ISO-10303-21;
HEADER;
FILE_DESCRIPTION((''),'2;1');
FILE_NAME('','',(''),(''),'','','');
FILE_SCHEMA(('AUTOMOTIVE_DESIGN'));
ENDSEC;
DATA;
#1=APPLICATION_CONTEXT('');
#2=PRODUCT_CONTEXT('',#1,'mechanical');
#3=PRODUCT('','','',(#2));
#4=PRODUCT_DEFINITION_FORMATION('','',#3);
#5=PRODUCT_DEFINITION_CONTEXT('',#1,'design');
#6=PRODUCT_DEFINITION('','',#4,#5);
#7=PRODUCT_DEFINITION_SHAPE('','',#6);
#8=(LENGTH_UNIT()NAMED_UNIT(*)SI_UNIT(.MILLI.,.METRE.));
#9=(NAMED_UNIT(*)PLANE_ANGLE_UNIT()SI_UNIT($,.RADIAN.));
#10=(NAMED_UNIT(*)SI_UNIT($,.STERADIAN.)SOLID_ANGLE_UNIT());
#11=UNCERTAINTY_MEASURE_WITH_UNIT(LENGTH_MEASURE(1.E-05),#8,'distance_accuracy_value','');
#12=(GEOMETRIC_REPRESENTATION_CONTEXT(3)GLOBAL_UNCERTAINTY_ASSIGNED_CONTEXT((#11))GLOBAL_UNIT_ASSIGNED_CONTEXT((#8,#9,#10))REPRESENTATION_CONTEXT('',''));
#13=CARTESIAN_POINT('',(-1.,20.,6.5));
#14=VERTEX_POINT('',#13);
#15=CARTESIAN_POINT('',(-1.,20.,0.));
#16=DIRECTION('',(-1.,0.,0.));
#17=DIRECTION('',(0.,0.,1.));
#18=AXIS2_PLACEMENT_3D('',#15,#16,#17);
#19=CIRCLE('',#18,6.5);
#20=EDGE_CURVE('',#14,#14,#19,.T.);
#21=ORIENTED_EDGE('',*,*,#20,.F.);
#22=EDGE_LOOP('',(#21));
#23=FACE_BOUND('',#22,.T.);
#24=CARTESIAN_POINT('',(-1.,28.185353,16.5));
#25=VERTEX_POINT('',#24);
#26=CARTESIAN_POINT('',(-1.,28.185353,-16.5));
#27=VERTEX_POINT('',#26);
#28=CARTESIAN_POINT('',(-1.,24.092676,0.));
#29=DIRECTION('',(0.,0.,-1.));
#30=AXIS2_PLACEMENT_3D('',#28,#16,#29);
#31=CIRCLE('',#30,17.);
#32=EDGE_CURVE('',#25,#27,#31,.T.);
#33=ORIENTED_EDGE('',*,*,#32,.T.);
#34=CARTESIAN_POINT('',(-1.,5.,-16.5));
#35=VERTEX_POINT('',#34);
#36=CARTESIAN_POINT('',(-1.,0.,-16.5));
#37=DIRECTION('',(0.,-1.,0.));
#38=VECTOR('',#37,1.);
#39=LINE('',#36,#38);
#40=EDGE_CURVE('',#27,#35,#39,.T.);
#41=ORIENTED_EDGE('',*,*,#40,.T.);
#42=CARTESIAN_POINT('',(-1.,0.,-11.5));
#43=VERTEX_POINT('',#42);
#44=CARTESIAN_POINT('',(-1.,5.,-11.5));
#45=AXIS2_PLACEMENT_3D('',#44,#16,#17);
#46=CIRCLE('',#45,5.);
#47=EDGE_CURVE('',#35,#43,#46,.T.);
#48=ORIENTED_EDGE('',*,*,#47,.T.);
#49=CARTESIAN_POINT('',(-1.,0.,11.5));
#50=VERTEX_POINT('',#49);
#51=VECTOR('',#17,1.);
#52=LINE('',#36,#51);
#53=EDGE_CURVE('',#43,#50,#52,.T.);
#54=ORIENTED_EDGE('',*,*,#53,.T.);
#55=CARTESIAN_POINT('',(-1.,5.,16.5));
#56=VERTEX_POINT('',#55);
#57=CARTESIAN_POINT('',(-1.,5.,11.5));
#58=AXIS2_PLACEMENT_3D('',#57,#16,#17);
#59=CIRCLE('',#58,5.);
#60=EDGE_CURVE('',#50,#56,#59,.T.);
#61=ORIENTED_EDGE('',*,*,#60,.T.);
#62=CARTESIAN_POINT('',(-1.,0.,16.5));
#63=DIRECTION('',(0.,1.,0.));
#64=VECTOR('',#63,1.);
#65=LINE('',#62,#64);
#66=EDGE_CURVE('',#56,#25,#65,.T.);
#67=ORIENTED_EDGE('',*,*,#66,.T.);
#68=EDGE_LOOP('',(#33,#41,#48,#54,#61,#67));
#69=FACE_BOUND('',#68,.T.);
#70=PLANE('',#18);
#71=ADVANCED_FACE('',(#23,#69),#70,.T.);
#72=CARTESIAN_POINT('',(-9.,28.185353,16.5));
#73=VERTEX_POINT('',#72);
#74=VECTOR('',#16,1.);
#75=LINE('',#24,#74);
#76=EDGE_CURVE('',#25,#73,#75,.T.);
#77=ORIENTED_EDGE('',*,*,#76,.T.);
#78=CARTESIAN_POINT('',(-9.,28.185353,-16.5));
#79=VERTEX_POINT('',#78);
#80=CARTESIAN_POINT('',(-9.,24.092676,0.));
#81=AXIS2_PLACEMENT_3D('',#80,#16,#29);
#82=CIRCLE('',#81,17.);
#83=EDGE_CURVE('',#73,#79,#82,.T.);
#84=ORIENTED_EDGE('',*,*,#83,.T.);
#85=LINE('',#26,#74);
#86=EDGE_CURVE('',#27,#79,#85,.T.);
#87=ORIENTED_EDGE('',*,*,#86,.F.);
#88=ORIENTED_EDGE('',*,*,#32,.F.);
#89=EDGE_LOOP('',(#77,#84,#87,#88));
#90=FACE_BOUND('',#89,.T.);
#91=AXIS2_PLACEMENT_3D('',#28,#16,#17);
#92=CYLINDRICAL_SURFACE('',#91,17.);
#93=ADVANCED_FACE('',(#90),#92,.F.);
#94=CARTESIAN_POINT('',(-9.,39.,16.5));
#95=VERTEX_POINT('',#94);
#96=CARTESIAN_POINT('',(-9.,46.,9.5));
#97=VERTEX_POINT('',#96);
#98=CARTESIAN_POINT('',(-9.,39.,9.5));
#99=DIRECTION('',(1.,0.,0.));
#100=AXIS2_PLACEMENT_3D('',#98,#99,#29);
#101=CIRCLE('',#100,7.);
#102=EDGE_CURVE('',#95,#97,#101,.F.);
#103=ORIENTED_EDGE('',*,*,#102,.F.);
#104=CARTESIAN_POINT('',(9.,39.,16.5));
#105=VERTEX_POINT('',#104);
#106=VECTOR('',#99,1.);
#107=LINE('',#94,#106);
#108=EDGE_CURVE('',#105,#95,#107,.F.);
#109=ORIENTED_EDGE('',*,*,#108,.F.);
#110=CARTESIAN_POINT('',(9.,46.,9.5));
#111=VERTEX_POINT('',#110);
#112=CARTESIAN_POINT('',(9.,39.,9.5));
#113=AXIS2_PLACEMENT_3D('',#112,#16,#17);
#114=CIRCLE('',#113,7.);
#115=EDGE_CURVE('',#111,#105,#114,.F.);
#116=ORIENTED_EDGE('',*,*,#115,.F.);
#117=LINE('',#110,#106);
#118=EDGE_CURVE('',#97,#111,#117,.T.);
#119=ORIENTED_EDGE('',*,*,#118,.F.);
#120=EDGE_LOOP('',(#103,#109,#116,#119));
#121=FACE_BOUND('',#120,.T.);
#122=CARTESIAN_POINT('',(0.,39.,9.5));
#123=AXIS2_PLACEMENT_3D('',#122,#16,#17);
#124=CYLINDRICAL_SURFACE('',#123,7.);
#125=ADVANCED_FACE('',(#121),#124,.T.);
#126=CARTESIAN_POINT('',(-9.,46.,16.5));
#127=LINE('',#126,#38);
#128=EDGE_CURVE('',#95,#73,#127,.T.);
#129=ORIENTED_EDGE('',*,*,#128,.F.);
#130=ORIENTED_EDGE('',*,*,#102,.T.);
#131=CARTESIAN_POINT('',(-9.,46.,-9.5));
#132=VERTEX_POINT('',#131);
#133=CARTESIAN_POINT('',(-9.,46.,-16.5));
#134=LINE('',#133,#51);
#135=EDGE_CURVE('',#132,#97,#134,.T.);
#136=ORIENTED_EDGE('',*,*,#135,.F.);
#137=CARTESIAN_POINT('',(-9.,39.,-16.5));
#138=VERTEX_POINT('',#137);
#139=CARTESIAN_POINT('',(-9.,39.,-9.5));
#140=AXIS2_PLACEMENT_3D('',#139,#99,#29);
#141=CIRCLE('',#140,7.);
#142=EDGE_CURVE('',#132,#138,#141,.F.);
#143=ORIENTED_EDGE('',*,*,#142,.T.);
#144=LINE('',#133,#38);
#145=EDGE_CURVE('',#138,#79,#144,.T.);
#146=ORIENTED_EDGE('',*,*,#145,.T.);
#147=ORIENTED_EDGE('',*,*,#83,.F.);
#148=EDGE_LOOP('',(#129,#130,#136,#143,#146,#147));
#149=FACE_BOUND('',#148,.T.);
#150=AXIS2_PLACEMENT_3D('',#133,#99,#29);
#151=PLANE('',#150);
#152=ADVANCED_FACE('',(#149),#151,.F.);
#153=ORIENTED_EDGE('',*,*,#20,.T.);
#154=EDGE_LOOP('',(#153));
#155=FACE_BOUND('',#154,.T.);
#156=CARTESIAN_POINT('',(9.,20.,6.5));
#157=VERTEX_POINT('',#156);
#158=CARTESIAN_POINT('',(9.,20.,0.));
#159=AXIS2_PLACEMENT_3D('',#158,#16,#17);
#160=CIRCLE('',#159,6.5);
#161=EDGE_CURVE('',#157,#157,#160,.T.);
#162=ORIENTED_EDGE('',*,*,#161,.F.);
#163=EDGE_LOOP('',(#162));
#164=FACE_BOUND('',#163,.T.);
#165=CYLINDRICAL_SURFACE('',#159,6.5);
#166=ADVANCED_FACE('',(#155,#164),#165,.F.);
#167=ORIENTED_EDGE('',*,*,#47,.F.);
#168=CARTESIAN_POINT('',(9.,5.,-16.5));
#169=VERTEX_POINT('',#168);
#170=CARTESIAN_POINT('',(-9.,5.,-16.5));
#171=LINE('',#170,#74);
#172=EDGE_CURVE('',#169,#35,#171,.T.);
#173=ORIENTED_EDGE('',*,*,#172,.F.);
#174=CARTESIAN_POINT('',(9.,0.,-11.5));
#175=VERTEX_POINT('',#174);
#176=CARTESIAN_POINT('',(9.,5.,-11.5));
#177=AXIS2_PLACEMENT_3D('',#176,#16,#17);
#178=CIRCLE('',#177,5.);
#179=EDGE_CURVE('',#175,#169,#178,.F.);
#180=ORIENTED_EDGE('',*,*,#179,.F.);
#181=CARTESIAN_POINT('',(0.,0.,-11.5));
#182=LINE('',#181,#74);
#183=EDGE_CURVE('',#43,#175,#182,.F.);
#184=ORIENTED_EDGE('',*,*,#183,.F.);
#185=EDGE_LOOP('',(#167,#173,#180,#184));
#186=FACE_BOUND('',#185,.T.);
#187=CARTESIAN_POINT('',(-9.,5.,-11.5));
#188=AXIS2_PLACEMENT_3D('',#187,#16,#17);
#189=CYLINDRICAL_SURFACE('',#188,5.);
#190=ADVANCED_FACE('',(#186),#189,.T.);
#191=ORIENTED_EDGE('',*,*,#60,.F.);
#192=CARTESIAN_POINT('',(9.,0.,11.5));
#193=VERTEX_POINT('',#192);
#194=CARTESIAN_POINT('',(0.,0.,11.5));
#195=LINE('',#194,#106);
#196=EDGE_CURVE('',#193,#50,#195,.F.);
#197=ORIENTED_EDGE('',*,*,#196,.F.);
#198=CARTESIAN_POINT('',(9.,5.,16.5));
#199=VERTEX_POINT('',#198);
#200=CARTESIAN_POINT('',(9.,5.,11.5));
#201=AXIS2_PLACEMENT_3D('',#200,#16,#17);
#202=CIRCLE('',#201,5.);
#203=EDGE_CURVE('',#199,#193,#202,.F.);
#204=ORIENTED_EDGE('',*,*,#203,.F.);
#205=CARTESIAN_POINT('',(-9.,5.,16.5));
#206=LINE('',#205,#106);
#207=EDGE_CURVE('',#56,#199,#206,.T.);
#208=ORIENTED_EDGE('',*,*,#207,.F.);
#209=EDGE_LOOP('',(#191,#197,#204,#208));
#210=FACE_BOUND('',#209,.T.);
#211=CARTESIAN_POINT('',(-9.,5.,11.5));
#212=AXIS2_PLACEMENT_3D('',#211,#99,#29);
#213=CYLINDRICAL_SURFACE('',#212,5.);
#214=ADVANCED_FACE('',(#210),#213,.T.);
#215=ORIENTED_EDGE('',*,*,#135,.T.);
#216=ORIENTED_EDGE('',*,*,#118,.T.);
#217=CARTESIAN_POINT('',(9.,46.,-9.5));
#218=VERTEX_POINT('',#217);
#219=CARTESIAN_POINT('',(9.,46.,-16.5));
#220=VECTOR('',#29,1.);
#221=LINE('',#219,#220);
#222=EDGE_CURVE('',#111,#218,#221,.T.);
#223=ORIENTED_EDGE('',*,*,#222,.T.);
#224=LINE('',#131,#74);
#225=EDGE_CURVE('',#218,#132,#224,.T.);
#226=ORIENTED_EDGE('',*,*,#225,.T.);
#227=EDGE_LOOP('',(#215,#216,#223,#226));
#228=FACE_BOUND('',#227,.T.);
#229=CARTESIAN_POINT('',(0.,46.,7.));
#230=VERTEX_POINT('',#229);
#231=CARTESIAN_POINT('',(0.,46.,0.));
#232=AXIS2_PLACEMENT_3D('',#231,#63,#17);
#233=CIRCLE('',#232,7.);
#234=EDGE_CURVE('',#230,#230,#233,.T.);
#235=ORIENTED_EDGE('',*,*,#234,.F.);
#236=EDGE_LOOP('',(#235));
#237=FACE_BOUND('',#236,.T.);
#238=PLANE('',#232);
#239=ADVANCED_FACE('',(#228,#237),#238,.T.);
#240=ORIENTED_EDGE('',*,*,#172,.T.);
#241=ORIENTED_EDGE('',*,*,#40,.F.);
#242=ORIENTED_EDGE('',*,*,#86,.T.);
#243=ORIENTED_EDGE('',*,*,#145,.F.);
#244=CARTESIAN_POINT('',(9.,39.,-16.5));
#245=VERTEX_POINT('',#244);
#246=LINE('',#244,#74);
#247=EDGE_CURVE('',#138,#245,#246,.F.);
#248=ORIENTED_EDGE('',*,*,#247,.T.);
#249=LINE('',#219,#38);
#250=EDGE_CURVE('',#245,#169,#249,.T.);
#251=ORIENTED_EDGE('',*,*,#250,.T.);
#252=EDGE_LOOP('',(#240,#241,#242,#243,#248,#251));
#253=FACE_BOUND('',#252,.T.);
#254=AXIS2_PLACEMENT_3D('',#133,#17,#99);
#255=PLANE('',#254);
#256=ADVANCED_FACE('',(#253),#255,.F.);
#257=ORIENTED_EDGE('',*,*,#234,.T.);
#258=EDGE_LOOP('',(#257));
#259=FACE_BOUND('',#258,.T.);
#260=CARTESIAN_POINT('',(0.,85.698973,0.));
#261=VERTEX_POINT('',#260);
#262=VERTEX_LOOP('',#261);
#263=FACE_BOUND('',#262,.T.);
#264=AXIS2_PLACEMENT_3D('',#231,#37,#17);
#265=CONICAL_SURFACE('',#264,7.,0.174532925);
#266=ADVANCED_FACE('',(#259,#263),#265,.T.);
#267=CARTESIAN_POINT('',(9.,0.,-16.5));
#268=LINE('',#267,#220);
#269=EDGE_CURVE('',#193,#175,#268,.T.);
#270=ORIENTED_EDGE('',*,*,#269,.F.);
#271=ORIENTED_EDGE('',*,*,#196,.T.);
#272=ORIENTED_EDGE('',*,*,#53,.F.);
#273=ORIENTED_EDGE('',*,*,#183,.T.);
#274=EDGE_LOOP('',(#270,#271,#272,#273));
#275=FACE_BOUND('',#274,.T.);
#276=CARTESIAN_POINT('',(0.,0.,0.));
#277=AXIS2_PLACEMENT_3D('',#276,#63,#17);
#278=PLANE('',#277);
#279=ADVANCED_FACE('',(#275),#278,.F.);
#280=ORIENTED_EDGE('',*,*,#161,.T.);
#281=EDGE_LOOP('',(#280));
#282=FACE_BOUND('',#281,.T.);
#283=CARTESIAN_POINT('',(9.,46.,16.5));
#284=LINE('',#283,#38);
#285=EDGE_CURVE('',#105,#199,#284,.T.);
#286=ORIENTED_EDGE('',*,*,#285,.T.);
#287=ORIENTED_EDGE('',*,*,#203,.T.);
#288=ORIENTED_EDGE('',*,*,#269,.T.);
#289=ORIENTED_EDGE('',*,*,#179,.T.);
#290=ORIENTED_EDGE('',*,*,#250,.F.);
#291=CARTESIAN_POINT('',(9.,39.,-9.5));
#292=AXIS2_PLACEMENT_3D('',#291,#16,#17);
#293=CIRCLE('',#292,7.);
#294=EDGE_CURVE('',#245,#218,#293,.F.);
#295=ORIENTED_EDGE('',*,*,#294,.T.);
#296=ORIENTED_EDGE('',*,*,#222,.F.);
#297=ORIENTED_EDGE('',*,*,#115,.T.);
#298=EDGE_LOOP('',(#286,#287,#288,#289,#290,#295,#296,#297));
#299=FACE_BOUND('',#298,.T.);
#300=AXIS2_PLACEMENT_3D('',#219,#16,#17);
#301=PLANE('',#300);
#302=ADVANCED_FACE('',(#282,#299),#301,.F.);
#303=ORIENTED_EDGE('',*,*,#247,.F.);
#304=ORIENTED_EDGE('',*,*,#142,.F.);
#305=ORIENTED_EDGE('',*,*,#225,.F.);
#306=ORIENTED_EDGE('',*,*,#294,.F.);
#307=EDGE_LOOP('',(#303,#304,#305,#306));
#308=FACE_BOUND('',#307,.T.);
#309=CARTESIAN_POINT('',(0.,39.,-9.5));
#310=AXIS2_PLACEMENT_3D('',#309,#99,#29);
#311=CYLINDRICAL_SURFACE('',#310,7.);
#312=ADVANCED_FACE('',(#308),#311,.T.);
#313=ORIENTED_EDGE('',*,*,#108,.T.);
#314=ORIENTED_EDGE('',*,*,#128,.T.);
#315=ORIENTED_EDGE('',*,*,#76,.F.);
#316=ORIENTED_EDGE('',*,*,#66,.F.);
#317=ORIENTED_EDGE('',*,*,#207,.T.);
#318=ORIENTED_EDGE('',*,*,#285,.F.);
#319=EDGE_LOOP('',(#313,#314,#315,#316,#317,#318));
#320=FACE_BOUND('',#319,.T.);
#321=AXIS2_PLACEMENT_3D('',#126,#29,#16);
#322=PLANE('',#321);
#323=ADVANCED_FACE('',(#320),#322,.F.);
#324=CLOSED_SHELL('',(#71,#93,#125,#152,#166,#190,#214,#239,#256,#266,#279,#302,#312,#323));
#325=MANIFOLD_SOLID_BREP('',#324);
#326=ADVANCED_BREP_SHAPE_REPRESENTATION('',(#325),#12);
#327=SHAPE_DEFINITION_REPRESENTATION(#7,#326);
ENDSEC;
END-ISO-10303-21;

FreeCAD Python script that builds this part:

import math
import FreeCAD as App
import Part
import Sketcher
from FreeCAD import Vector
Q = App.Units.Quantity


def edges_at(feature, points):
    """Names of the edges that pass closest to the given points."""
    edges = feature.Shape.Edges
    near = lambda p: min(range(len(edges)), key=lambda i: edges[i].distToShape(Part.Vertex(*p))[0])
    return sorted({f"Edge{near(p) + 1}" for p in points})


def add_polygon(sketch, points):
    """Adds a closed chain of lines whose ends are joined by coincident constraints."""
    first, n = sketch.GeometryCount, len(points)
    for a, b in zip(points, points[1:] + points[:1]):
        sketch.addGeometry(Part.LineSegment(App.Vector(*a, 0), App.Vector(*b, 0)), False)
    for i in range(n):
        sketch.addConstraint(Sketcher.Constraint("Coincident", first + i, 2, first + (i + 1) % n, 1))

doc = App.newDocument("Part")
body = doc.addObject("PartDesign::Body", "Body")

sketch1 = body.newObject("Sketcher::SketchObject", "Sketch")
sketch1.AttachmentSupport = (doc.getObject("XZ_Plane"), [""])
sketch1.MapMode = "FlatFace"
add_polygon(sketch1, [(-9, -16.5), (-9, 16.5), (9, 16.5), (9, -16.5)])
sketch1.addConstraint([
    Sketcher.Constraint("Vertical", 0),
    Sketcher.Constraint("Horizontal", 1),
    Sketcher.Constraint("Vertical", 2),
    Sketcher.Constraint("Horizontal", 3),
    Sketcher.Constraint("Symmetric", 0, 2, 2, 2, -1, 1),
    Sketcher.Constraint("DistanceX", 1, 1, 1, 2, Q("18 mm")),
    Sketcher.Constraint("DistanceY", 0, 1, 0, 2, Q("33 mm")),
])
pad1 = body.newObject("PartDesign::Pad", "Pad")
pad1.Profile = sketch1
pad1.Length = 46
pad1.Reversed = True

sketch2 = body.newObject("Sketcher::SketchObject", "Sketch001")
sketch2.AttachmentSupport = (doc.getObject("YZ_Plane"), [""])
sketch2.MapMode = "FlatFace"
add_polygon(sketch2, [(46, 0), (46, -7), (85.698973, 0)])
sketch2.addConstraint([
    Sketcher.Constraint("Vertical", 0),
    Sketcher.Constraint("Horizontal", 2),
    Sketcher.Constraint("PointOnObject", 1, 2, -1),
    Sketcher.Constraint("DistanceY", 0, 2, 0, 1, Q("7 mm")),
    Sketcher.Constraint("Angle", 1, Q("10 deg")),
    Sketcher.Constraint("DistanceX", -1, 1, 0, 2, Q("46 mm")),
])
revolution = body.newObject("PartDesign::Revolution", "Revolution")
revolution.Profile = sketch2
revolution.ReferenceAxis = (sketch2, ["H_Axis"])
revolution.Angle = 360

sketch3 = body.newObject("Sketcher::SketchObject", "Sketch002")
sketch3.AttachmentSupport = (doc.getObject("YZ_Plane"), [""])
sketch3.MapMode = "FlatFace"
sketch3.AttachmentOffset = App.Placement(Vector(0, 0, -9), App.Rotation())
sketch3.addGeometry([
    Part.LineSegment(Vector(0, -16.5, 0), Vector(0, 16.5, 0)),
    Part.LineSegment(Vector(0, 16.5, 0), Vector(20, 16.5, 0)),
    Part.ArcOfCircle(Part.Circle(Vector(20, 0, 0), Vector(0, 0, 1), 16.5), math.radians(-90), math.radians(90)),
    Part.LineSegment(Vector(20, -16.5, 0), Vector(0, -16.5, 0)),
], False)
sketch3.addConstraint([
    Sketcher.Constraint("Coincident", 0, 2, 1, 1),
    Sketcher.Constraint("Tangent", 1, 2, 2, 2),
    Sketcher.Constraint("Tangent", 2, 1, 3, 1),
    Sketcher.Constraint("Coincident", 3, 2, 0, 1),
    Sketcher.Constraint("Vertical", 0),
    Sketcher.Constraint("Horizontal", 1),
    Sketcher.Constraint("Horizontal", 3),
    Sketcher.Constraint("Symmetric", 0, 2, 3, 2, -1, 1),
    Sketcher.Constraint("Radius", 2, Q("16.5 mm")),
    Sketcher.Constraint("DistanceX", 1, 1, 1, 2, Q("20 mm")),
])
pocket1 = body.newObject("PartDesign::Pocket", "Pocket")
pocket1.Profile = sketch3
pocket1.Length = 8
pocket1.Reversed = True

sketch4 = body.newObject("Sketcher::SketchObject", "Sketch003")
sketch4.AttachmentSupport = (doc.getObject("YZ_Plane"), [""])
sketch4.MapMode = "FlatFace"
sketch4.AttachmentOffset = App.Placement(Vector(0, 0, -1), App.Rotation())
sketch4.addGeometry(Part.Circle(Vector(20, 0, 0), Vector(0, 0, 1), 6.5), False)
sketch4.addConstraint([
    Sketcher.Constraint("PointOnObject", 0, 3, -1),
    Sketcher.Constraint("Diameter", 0, Q("13 mm")),
    Sketcher.Constraint("DistanceX", -1, 1, 0, 3, Q("20 mm")),
])
pocket2 = body.newObject("PartDesign::Pocket", "Pocket001")
pocket2.Profile = sketch4
pocket2.Length = 10
pocket2.Reversed = True
doc.recompute()

fillet = body.newObject("PartDesign::Fillet", "Fillet")
fillet.Base = (pocket2, edges_at(pocket2, [(4, 0, 16.5), (4, 0, -16.5)]))
fillet.Radius = 5
doc.recompute()

fillet2 = body.newObject("PartDesign::Fillet", "Fillet001")
fillet2.Base = (fillet, edges_at(fillet, [(0, 46, 16.5), (0, 46, -16.5)]))
fillet2.Radius = 7

sketch5 = body.newObject("Sketcher::SketchObject", "Sketch004")
sketch5.AttachmentSupport = (doc.getObject("YZ_Plane"), [""])
sketch5.MapMode = "FlatFace"
sketch5.AttachmentOffset = App.Placement(Vector(0, 0, -9), App.Rotation())
sketch5.addGeometry([
    Part.LineSegment(Vector(20, -16.5, 0), Vector(20, 16.5, 0)),
    Part.LineSegment(Vector(20, 16.5, 0), Vector(28.185353, 16.5, 0)),
    Part.ArcOfCircle(Part.Circle(Vector(24.092676, 0, 0), Vector(0, 0, 1), 17), math.radians(-76.069445), math.radians(76.069445)),
    Part.LineSegment(Vector(28.185353, -16.5, 0), Vector(20, -16.5, 0)),
], False)
sketch5.addConstraint([
    Sketcher.Constraint("Coincident", 0, 2, 1, 1),
    Sketcher.Constraint("Coincident", 1, 2, 2, 2),
    Sketcher.Constraint("Coincident", 2, 1, 3, 1),
    Sketcher.Constraint("Coincident", 3, 2, 0, 1),
    Sketcher.Constraint("Vertical", 0),
    Sketcher.Constraint("Horizontal", 1),
    Sketcher.Constraint("Horizontal", 3),
    Sketcher.Constraint("Symmetric", 1, 2, 2, 1, -1),
    Sketcher.Constraint("Radius", 2, Q("17 mm")),
    Sketcher.Constraint("DistanceY", 0, 1, 0, 2, Q("33 mm")),
    Sketcher.Constraint("DistanceX", -1, 1, 0, 2, Q("20 mm")),
    Sketcher.Constraint("DistanceX", 1, 1, 1, 2, Q("8.185353 mm")),
])
pocket3 = body.newObject("PartDesign::Pocket", "Pocket002")
pocket3.Profile = sketch5
pocket3.Length = 8
pocket3.Reversed = True

doc.recompute()
